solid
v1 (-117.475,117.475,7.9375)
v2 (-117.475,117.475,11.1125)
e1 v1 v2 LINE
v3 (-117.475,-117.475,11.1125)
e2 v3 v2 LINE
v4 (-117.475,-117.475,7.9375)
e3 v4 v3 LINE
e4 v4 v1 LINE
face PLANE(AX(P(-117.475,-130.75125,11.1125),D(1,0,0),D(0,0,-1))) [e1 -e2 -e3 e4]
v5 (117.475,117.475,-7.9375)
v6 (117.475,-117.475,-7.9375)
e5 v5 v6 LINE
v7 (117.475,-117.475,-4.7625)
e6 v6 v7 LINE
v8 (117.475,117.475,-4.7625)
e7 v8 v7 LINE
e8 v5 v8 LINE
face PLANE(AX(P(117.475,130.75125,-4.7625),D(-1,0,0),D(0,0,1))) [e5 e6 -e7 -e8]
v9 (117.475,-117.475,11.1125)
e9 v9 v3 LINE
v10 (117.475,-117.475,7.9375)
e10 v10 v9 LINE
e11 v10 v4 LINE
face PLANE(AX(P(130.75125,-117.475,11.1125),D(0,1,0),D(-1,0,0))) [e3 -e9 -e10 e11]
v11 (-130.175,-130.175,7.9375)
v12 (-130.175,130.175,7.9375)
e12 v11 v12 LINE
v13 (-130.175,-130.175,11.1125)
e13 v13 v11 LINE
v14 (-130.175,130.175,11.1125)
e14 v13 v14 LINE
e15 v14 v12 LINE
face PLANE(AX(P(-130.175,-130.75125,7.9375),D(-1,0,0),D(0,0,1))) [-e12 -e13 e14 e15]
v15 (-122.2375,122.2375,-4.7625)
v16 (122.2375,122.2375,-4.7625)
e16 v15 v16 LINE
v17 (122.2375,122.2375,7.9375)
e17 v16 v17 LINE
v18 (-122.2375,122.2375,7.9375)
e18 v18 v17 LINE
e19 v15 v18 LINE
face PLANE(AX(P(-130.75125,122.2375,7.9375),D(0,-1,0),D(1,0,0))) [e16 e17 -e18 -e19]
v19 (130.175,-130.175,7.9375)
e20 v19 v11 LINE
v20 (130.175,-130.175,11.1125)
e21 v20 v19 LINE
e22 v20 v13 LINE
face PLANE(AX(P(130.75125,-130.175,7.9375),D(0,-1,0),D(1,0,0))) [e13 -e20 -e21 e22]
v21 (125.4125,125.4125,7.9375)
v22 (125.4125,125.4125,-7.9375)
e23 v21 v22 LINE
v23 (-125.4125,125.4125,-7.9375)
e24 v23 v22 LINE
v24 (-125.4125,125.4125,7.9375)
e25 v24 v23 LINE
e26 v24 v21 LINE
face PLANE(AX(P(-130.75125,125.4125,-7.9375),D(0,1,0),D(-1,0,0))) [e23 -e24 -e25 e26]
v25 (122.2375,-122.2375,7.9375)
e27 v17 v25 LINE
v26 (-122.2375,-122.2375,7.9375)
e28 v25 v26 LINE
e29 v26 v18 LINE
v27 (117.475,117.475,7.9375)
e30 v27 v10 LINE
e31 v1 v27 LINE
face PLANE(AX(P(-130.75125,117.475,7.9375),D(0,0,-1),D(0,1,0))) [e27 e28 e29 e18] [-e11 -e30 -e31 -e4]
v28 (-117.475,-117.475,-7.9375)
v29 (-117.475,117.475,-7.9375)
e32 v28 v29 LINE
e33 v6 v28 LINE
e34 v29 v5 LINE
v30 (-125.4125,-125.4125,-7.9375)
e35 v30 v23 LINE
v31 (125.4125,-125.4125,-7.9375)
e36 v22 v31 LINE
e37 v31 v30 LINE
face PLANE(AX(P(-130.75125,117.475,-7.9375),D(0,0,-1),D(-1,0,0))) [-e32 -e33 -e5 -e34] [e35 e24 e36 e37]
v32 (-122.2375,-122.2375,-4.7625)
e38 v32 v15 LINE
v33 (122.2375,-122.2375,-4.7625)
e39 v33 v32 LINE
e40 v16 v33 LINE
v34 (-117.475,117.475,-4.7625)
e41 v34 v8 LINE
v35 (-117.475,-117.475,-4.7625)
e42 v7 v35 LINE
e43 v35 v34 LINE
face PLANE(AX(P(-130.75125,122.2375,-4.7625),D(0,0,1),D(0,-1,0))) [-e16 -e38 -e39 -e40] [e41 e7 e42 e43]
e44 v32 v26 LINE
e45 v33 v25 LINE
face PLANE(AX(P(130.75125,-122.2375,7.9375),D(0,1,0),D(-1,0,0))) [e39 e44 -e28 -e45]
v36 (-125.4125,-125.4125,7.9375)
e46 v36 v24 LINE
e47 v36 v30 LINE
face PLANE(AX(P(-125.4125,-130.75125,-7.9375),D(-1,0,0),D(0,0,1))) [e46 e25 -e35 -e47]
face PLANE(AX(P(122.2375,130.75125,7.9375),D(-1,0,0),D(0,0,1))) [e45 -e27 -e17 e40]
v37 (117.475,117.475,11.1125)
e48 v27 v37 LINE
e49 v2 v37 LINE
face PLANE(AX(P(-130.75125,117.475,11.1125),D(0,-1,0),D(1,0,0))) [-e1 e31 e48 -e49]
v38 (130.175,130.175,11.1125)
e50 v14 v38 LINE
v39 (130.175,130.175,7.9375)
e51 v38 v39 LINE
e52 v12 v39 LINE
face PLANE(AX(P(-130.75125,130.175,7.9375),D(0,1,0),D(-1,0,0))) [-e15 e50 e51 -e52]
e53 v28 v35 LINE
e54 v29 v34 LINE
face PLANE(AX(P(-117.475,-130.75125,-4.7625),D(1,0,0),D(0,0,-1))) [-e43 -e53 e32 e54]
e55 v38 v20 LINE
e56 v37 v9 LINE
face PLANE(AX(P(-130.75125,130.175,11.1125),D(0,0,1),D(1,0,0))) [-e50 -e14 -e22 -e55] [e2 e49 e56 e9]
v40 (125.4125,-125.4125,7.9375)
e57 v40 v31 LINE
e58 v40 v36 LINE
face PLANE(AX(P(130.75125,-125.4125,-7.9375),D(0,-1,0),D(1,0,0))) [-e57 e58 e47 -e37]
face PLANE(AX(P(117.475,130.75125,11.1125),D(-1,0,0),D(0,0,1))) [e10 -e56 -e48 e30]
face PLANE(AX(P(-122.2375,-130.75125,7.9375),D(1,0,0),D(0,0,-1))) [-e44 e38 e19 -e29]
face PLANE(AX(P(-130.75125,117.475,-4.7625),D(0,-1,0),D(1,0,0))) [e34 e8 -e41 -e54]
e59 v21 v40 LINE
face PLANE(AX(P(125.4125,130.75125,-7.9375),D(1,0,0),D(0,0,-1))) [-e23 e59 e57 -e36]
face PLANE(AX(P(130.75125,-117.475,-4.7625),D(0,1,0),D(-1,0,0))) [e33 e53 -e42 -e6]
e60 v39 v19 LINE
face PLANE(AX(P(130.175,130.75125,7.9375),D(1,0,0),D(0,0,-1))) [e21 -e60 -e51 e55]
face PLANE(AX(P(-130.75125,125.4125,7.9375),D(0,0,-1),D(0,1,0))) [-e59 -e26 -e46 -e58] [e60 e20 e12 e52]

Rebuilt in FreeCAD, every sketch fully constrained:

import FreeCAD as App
import Part
import Sketcher
from FreeCAD import Vector
Q = App.Units.Quantity


def add_polygon(sketch, points):
    """Adds a closed chain of lines whose ends are joined by coincident constraints."""
    first, n = sketch.GeometryCount, len(points)
    for a, b in zip(points, points[1:] + points[:1]):
        sketch.addGeometry(Part.LineSegment(App.Vector(*a, 0), App.Vector(*b, 0)), False)
    for i in range(n):
        sketch.addConstraint(Sketcher.Constraint("Coincident", first + i, 2, first + (i + 1) % n, 1))

doc = App.newDocument("Part")
body = doc.addObject("PartDesign::Body", "Body")

sketch1 = doc.addObject("Sketcher::SketchObject", "Sketch")
body.addObject(sketch1)
sketch1.AttachmentSupport = (doc.XZ_Plane, [""])
sketch1.MapMode = "FlatFace"
add_polygon(sketch1, [(-125.4125, -7.9375), (-125.4125, 7.9375), (-130.175, 7.9375), (-130.175, 11.1125), (-117.475, 11.1125), (-117.475, 7.9375), (-122.2375, 7.9375), (-122.2375, -4.7625), (-117.475, -4.7625), (-117.475, -7.9375)])
sketch1.addConstraint([
    Sketcher.Constraint("Vertical", 0),
    Sketcher.Constraint("Horizontal", 1),
    Sketcher.Constraint("Vertical", 2),
    Sketcher.Constraint("Horizontal", 3),
    Sketcher.Constraint("Vertical", 4),
    Sketcher.Constraint("Horizontal", 5),
    Sketcher.Constraint("Vertical", 6),
    Sketcher.Constraint("Horizontal", 7),
    Sketcher.Constraint("Vertical", 8),
    Sketcher.Constraint("Horizontal", 9),
    Sketcher.Constraint("Symmetric", 4, 2, 8, 2, -1),
    Sketcher.Constraint("Horizontal", 1, 2, 4, 2),
    Sketcher.Constraint("Equal", 1, 5),
    Sketcher.Constraint("Equal", 3, 6),
    Sketcher.Constraint("Equal", 4, 8),
    Sketcher.Constraint("DistanceX", 3, 1, 3, 2, Q("0.5 in")),
    Sketcher.Constraint("DistanceX", 1, 2, 1, 1, Q("0.1875 in")),
    Sketcher.Constraint("DistanceY", 0, 1, 0, 2, Q("0.625 in")),
    Sketcher.Constraint("DistanceX", 0, 2, -1, 1, Q("4.9375 in")),
])

sketch2 = doc.addObject("Sketcher::SketchObject", "Sketch001")
body.addObject(sketch2)
sketch2.AttachmentSupport = (doc.XY_Plane, [""])
sketch2.MapMode = "FlatFace"
add_polygon(sketch2, [(125.4125, -125.4125), (-125.4125, -125.4125), (-125.4125, 125.4125), (125.4125, 125.4125)])
sketch2.addConstraint([
    Sketcher.Constraint("Horizontal", 0),
    Sketcher.Constraint("Vertical", 1),
    Sketcher.Constraint("Horizontal", 2),
    Sketcher.Constraint("Vertical", 3),
    Sketcher.Constraint("Symmetric", 0, 2, 2, 2, -1, 1),
    Sketcher.Constraint("Equal", 2, 1),
    Sketcher.Constraint("DistanceX", 0, 2, 0, 1, Q("9.875 in")),
])
doc.recompute()

additivepipe = doc.addObject("PartDesign::AdditivePipe", "AdditivePipe")
body.addObject(additivepipe)
additivepipe.Profile = sketch1
additivepipe.Spine = (sketch2, ["Edge1", "Edge2", "Edge3", "Edge4"])
additivepipe.Transition = "Right corner"

doc.recompute()
